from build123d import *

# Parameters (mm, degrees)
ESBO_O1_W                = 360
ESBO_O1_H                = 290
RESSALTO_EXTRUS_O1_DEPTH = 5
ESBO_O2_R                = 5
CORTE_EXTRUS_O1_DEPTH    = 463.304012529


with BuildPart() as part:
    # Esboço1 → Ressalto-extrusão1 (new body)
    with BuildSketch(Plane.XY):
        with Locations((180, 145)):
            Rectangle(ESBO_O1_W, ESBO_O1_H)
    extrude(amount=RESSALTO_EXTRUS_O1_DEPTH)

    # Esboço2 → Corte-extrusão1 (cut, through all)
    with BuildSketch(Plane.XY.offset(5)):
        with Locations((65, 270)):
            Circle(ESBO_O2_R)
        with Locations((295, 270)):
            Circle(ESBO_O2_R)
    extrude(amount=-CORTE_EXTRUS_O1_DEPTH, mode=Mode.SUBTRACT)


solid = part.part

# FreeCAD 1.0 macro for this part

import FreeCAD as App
import Part
import Sketcher

V = App.Vector
Q = App.Units.Quantity

doc = App.newDocument("Part")
body = doc.addObject("PartDesign::Body", "Body")

# Sketch on XY plane
sketch1 = body.newObject("Sketcher::SketchObject", "Sketch")
sketch1.AttachmentSupport = (doc.getObject("XY_Plane"), [""])
sketch1.MapMode = "FlatFace"
sketch1.addGeometry([
    Part.LineSegment(V(0, 290, 0), V(0, 0, 0)),
    Part.LineSegment(V(0, 0, 0), V(360, 0, 0)),
    Part.LineSegment(V(360, 0, 0), V(360, 290, 0)),
    Part.LineSegment(V(360, 290, 0), V(0, 290, 0)),
], False)
sketch1.addConstraint([
    Sketcher.Constraint("Coincident", 0, 2, 1, 1),
    Sketcher.Constraint("Coincident", 1, 2, 2, 1),
    Sketcher.Constraint("Coincident", 2, 2, 3, 1),
    Sketcher.Constraint("Coincident", 3, 2, 0, 1),
    Sketcher.Constraint("Vertical", 0),
    Sketcher.Constraint("Horizontal", 1),
    Sketcher.Constraint("Vertical", 2),
    Sketcher.Constraint("Horizontal", 3),
    Sketcher.Constraint("Coincident", 0, 2, -1, 1),
    Sketcher.Constraint("DistanceX", 1, 1, 1, 2, Q("360 mm")),
    Sketcher.Constraint("DistanceY", 0, 2, 0, 1, Q("290 mm")),
])
pad1 = body.newObject("PartDesign::Pad", "Pad")
pad1.Profile = sketch1
pad1.Length = 5

# Sketch on XY plane
sketch2 = body.newObject("Sketcher::SketchObject", "Sketch001")
sketch2.AttachmentSupport = (doc.getObject("XY_Plane"), [""])
sketch2.MapMode = "FlatFace"
sketch2.AttachmentOffset = App.Placement(V(0, 0, 5), App.Rotation())
sketch2.addGeometry([
    Part.Circle(V(65, 270, 0), V(0, 0, 1), 5),
    Part.Circle(V(295, 270, 0), V(0, 0, 1), 5),
], False)
sketch2.addConstraint([
    Sketcher.Constraint("Equal", 0, 1),
    Sketcher.Constraint("Horizontal", 0, 3, 1, 3),
    Sketcher.Constraint("Diameter", 0, Q("10 mm")),
    Sketcher.Constraint("DistanceX", -1, 1, 0, 3, Q("65 mm")),
    Sketcher.Constraint("DistanceY", -1, 1, 0, 3, Q("270 mm")),
    Sketcher.Constraint("DistanceX", -1, 1, 1, 3, Q("295 mm")),
])
pocket1 = body.newObject("PartDesign::Pocket", "Pocket")
pocket1.Profile = sketch2
pocket1.Type = "ThroughAll"

doc.recompute()
